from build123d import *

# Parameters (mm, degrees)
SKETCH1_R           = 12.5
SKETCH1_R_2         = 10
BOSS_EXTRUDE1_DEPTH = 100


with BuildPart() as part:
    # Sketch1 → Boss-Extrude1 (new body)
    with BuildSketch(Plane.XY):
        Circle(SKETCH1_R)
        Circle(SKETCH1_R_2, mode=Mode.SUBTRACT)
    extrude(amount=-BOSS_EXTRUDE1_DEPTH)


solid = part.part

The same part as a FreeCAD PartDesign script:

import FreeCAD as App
import Part
import Sketcher
from FreeCAD import Vector
Q = App.Units.Quantity

doc = App.newDocument("Part")
body = doc.addObject("PartDesign::Body", "Body")

# Sketch on XY plane
sketch1 = body.newObject("Sketcher::SketchObject", "Sketch")
sketch1.AttachmentSupport = (doc.getObject("XY_Plane"), [""])
sketch1.MapMode = "FlatFace"
sketch1.addGeometry(Part.Circle(Vector(0, 0, 0), Vector(0, 0, 1), 12), False)
sketch1.addGeometry(Part.Circle(Vector(0, 0, 0), Vector(0, 0, 1), 10), False)
sketch1.addConstraint(Sketcher.Constraint("Coincident", 0, 3, -1, 1))
sketch1.addConstraint(Sketcher.Constraint("Coincident", 1, 3, -1, 1))
sketch1.addConstraint(Sketcher.Constraint("Diameter", 0, Q("25 mm")))
sketch1.addConstraint(Sketcher.Constraint("Diameter", 1, Q("20 mm")))
pad1 = body.newObject("PartDesign::Pad", "Pad")
pad1.Profile = sketch1
pad1.Length = 100
pad1.Reversed = True

doc.recompute()
